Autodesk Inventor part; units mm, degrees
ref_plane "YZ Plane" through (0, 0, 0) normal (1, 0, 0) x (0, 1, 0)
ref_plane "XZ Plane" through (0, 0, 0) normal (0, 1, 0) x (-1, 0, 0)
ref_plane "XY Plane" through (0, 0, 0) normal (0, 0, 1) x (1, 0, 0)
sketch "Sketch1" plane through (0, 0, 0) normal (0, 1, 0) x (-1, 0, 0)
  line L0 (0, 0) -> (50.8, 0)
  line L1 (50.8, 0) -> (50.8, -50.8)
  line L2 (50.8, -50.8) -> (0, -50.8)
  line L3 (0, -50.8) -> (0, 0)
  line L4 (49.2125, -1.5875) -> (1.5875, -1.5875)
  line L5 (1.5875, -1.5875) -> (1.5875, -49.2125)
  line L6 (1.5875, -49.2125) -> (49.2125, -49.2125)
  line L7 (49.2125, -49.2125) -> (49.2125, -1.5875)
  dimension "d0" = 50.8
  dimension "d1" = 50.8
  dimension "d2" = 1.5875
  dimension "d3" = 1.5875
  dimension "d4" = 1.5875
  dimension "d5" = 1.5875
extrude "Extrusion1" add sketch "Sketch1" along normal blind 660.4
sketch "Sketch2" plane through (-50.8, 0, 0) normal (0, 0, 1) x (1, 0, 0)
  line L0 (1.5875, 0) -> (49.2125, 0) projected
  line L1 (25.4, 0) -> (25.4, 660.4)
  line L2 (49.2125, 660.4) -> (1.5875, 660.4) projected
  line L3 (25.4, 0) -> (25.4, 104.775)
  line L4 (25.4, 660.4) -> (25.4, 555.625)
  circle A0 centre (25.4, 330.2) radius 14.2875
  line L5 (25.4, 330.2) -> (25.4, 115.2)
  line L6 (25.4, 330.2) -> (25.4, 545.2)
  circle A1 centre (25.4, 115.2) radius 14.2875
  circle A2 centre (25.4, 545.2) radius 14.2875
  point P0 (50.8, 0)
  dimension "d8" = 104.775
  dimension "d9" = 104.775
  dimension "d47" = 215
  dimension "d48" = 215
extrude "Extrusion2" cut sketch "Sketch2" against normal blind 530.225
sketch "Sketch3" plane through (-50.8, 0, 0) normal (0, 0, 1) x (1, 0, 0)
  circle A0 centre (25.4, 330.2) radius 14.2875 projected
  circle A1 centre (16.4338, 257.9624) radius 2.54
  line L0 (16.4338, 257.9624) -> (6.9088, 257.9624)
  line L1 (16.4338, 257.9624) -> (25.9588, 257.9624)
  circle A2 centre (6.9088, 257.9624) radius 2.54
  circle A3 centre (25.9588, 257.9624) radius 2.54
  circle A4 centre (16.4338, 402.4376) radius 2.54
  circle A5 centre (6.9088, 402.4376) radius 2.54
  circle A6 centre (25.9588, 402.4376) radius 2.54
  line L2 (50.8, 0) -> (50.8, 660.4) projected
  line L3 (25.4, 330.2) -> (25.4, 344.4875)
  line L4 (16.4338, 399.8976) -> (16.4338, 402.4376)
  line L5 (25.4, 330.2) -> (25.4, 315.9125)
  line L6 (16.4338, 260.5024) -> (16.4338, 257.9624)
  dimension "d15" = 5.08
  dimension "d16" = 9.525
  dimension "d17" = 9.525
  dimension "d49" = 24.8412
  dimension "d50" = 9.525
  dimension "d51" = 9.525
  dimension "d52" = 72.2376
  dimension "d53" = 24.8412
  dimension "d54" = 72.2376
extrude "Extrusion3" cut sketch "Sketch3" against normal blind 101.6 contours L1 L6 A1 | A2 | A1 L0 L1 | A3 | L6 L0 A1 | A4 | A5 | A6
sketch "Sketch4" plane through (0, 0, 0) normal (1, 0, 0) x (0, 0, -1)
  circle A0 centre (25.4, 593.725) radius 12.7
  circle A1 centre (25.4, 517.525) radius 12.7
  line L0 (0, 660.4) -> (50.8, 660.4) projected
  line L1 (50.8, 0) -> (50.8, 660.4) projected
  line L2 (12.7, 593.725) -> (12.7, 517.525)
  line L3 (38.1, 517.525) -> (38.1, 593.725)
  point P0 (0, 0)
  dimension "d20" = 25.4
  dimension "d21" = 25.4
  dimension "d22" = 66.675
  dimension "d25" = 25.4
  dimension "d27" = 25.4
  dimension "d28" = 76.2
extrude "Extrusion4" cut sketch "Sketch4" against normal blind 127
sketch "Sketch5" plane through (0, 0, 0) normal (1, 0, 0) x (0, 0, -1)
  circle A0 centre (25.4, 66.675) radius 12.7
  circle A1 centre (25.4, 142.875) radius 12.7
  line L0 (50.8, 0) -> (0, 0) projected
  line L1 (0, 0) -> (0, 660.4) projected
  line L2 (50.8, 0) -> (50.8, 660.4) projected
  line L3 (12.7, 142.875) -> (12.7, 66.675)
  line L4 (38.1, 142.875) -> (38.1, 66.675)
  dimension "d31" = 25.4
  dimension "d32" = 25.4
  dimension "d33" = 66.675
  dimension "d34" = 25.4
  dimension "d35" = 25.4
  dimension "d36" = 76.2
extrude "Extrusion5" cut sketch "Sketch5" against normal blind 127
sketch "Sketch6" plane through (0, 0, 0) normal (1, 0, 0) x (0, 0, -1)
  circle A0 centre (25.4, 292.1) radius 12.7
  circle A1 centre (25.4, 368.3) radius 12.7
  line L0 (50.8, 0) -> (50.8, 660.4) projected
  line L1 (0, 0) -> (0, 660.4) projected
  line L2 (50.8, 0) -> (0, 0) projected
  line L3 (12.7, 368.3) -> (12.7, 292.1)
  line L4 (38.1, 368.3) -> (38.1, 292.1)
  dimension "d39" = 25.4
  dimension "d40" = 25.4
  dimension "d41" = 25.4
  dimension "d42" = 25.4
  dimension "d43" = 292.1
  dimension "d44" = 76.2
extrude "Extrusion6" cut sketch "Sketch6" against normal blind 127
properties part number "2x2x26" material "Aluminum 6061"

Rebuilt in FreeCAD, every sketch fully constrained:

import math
import FreeCAD as App
import Part
import Sketcher
from FreeCAD import Vector
Q = App.Units.Quantity

doc = App.newDocument("Part")
body = doc.addObject("PartDesign::Body", "Body")

sketch1 = body.newObject("Sketcher::SketchObject", "Sketch")
sketch1.AttachmentSupport = (doc.getObject("XZ_Plane"), [""])
sketch1.MapMode = "FlatFace"
sketch1.addGeometry(Part.LineSegment(Vector(-51, 0, 0), Vector(0, 0, 0)), False)
sketch1.addGeometry(Part.LineSegment(Vector(0, 0, 0), Vector(0, -51, 0)), False)
sketch1.addGeometry(Part.LineSegment(Vector(0, -51, 0), Vector(-51, -51, 0)), False)
sketch1.addGeometry(Part.LineSegment(Vector(-51, -51, 0), Vector(-51, 0, 0)), False)
sketch1.addGeometry(Part.LineSegment(Vector(-2, -2, 0), Vector(-49, -2, 0)), False)
sketch1.addGeometry(Part.LineSegment(Vector(-49, -2, 0), Vector(-49, -49, 0)), False)
sketch1.addGeometry(Part.LineSegment(Vector(-49, -49, 0), Vector(-2, -49, 0)), False)
sketch1.addGeometry(Part.LineSegment(Vector(-2, -49, 0), Vector(-2, -2, 0)), False)
sketch1.addConstraint(Sketcher.Constraint("Coincident", 0, 2, 1, 1))
sketch1.addConstraint(Sketcher.Constraint("Coincident", 1, 2, 2, 1))
sketch1.addConstraint(Sketcher.Constraint("Coincident", 2, 2, 3, 1))
sketch1.addConstraint(Sketcher.Constraint("Coincident", 3, 2, 0, 1))
sketch1.addConstraint(Sketcher.Constraint("Coincident", 4, 2, 5, 1))
sketch1.addConstraint(Sketcher.Constraint("Coincident", 5, 2, 6, 1))
sketch1.addConstraint(Sketcher.Constraint("Coincident", 6, 2, 7, 1))
sketch1.addConstraint(Sketcher.Constraint("Coincident", 7, 2, 4, 1))
sketch1.addConstraint(Sketcher.Constraint("Horizontal", 0))
sketch1.addConstraint(Sketcher.Constraint("Vertical", 1))
sketch1.addConstraint(Sketcher.Constraint("Horizontal", 2))
sketch1.addConstraint(Sketcher.Constraint("Vertical", 3))
sketch1.addConstraint(Sketcher.Constraint("Horizontal", 4))
sketch1.addConstraint(Sketcher.Constraint("Vertical", 5))
sketch1.addConstraint(Sketcher.Constraint("Horizontal", 6))
sketch1.addConstraint(Sketcher.Constraint("Vertical", 7))
sketch1.addConstraint(Sketcher.Constraint("Coincident", 0, 2, -1, 1))
sketch1.addConstraint(Sketcher.Constraint("Equal", 2, 1))
sketch1.addConstraint(Sketcher.Constraint("Equal", 6, 5))
sketch1.addConstraint(Sketcher.Constraint("DistanceX", 0, 1, 0, 2, Q("2 in")))
sketch1.addConstraint(Sketcher.Constraint("DistanceY", 4, 2, -1, 1, Q("0.0625 in")))
sketch1.addConstraint(Sketcher.Constraint("DistanceX", 6, 2, -1, 1, Q("0.0625 in")))
sketch1.addConstraint(Sketcher.Constraint("DistanceX", 3, 2, 4, 2, Q("0.0625 in")))
pad1 = body.newObject("PartDesign::Pad", "Pad")
pad1.Profile = sketch1
pad1.Length = Q("26 in")
pad1.Reversed = True

sketch2 = body.newObject("Sketcher::SketchObject", "Sketch001")
sketch2.AttachmentSupport = (doc.getObject("XY_Plane"), [""])
sketch2.MapMode = "FlatFace"
sketch2.addGeometry(Part.Circle(Vector(-25, 115, 0), Vector(0, 0, 1), 14), False)
sketch2.addGeometry(Part.Circle(Vector(-25, 545, 0), Vector(0, 0, 1), 14), False)
sketch2.addGeometry(Part.Circle(Vector(-25, 330, 0), Vector(0, 0, 1), 14), False)
sketch2.addConstraint(Sketcher.Constraint("Equal", 0, 1))
sketch2.addConstraint(Sketcher.Constraint("Equal", 1, 2))
sketch2.addConstraint(Sketcher.Constraint("Vertical", 0, 3, 1, 3))
sketch2.addConstraint(Sketcher.Constraint("Vertical", 1, 3, 2, 3))
sketch2.addConstraint(Sketcher.Constraint("Diameter", 0, Q("1.125 in")))
sketch2.addConstraint(Sketcher.Constraint("DistanceX", 0, 3, -1, 1, Q("1 in")))
sketch2.addConstraint(Sketcher.Constraint("DistanceY", -1, 1, 2, 3, Q("13 in")))
sketch2.addConstraint(Sketcher.Constraint("DistanceY", 0, 3, 2, 3, 215.0))
sketch2.addConstraint(Sketcher.Constraint("DistanceY", 2, 3, 1, 3, 215.0))
pocket1 = body.newObject("PartDesign::Pocket", "Pocket")
pocket1.Profile = sketch2
pocket1.Length = Q("20.875 in")

sketch3 = body.newObject("Sketcher::SketchObject", "Sketch002")
sketch3.AttachmentSupport = (doc.getObject("XY_Plane"), [""])
sketch3.MapMode = "FlatFace"
sketch3.addGeometry(Part.Circle(Vector(-34.4, 258, 0), Vector(0, 0, 1), 2.5), False)
sketch3.addGeometry(Part.Circle(Vector(-43.9, 258, 0), Vector(0, 0, 1), 2.5), False)
sketch3.addGeometry(Part.Circle(Vector(-24.8, 258, 0), Vector(0, 0, 1), 2.5), False)
sketch3.addGeometry(Part.Circle(Vector(-34.4, 402.4, 0), Vector(0, 0, 1), 2.5), False)
sketch3.addGeometry(Part.Circle(Vector(-43.9, 402.4, 0), Vector(0, 0, 1), 2.5), False)
sketch3.addGeometry(Part.Circle(Vector(-24.8, 402.4, 0), Vector(0, 0, 1), 2.5), False)
sketch3.addConstraint(Sketcher.Constraint("Equal", 0, 1))
sketch3.addConstraint(Sketcher.Constraint("Equal", 1, 2))
sketch3.addConstraint(Sketcher.Constraint("Equal", 2, 3))
sketch3.addConstraint(Sketcher.Constraint("Equal", 3, 4))
sketch3.addConstraint(Sketcher.Constraint("Equal", 4, 5))
sketch3.addConstraint(Sketcher.Constraint("Horizontal", 0, 3, 1, 3))
sketch3.addConstraint(Sketcher.Constraint("Horizontal", 1, 3, 2, 3))
sketch3.addConstraint(Sketcher.Constraint("Horizontal", 3, 3, 4, 3))
sketch3.addConstraint(Sketcher.Constraint("Horizontal", 4, 3, 5, 3))
sketch3.addConstraint(Sketcher.Constraint("Vertical", 0, 3, 3, 3))
sketch3.addConstraint(Sketcher.Constraint("Vertical", 1, 3, 4, 3))
sketch3.addConstraint(Sketcher.Constraint("Vertical", 2, 3, 5, 3))
sketch3.addConstraint(Sketcher.Constraint("Diameter", 0, Q("0.2 in")))
sketch3.addConstraint(Sketcher.Constraint("DistanceX", 2, 3, -1, 1, Q("0.978 in")))
sketch3.addConstraint(Sketcher.Constraint("DistanceX", 1, 3, 0, 3, Q("0.375 in")))
sketch3.addConstraint(Sketcher.Constraint("DistanceX", 0, 3, 2, 3, Q("0.375 in")))
sketch3.addConstraint(Sketcher.Constraint("DistanceY", -1, 1, 0, 3, Q("10.156 in")))
sketch3.addConstraint(Sketcher.Constraint("DistanceY", -1, 1, 3, 3, Q("15.844 in")))
pocket2 = body.newObject("PartDesign::Pocket", "Pocket001")
pocket2.Profile = sketch3
pocket2.Length = Q("4 in")

sketch4 = body.newObject("Sketcher::SketchObject", "Sketch003")
sketch4.AttachmentSupport = (doc.getObject("YZ_Plane"), [""])
sketch4.MapMode = "FlatFace"
sketch4.addGeometry(Part.ArcOfCircle(Part.Circle(Vector(594, -25, 0), Vector(0, 0, 1), 13), math.radians(-90), math.radians(90)), False)
sketch4.addGeometry(Part.LineSegment(Vector(594, -13, 0), Vector(518, -13, 0)), False)
sketch4.addGeometry(Part.ArcOfCircle(Part.Circle(Vector(518, -25, 0), Vector(0, 0, 1), 13), math.radians(90), math.radians(270)), False)
sketch4.addGeometry(Part.LineSegment(Vector(518, -38, 0), Vector(594, -38, 0)), False)
sketch4.addConstraint(Sketcher.Constraint("Tangent", 0, 2, 1, 1))
sketch4.addConstraint(Sketcher.Constraint("Tangent", 1, 2, 2, 1))
sketch4.addConstraint(Sketcher.Constraint("Tangent", 2, 2, 3, 1))
sketch4.addConstraint(Sketcher.Constraint("Tangent", 3, 2, 0, 1))
sketch4.addConstraint(Sketcher.Constraint("Horizontal", 1))
sketch4.addConstraint(Sketcher.Constraint("Horizontal", 3))
sketch4.addConstraint(Sketcher.Constraint("Radius", 0, Q("0.5 in")))
sketch4.addConstraint(Sketcher.Constraint("DistanceX", 1, 2, 1, 1, Q("3 in")))
sketch4.addConstraint(Sketcher.Constraint("DistanceY", 0, 3, -1, 1, Q("1 in")))
sketch4.addConstraint(Sketcher.Constraint("DistanceX", -1, 1, 0, 3, Q("23.375 in")))
pocket3 = body.newObject("PartDesign::Pocket", "Pocket002")
pocket3.Profile = sketch4
pocket3.Length = Q("5 in")

sketch5 = body.newObject("Sketcher::SketchObject", "Sketch004")
sketch5.AttachmentSupport = (doc.getObject("YZ_Plane"), [""])
sketch5.MapMode = "FlatFace"
sketch5.addGeometry(Part.ArcOfCircle(Part.Circle(Vector(67, -25, 0), Vector(0, 0, 1), 13), math.radians(90), math.radians(270)), False)
sketch5.addGeometry(Part.LineSegment(Vector(67, -38, 0), Vector(143, -38, 0)), False)
sketch5.addGeometry(Part.ArcOfCircle(Part.Circle(Vector(143, -25, 0), Vector(0, 0, 1), 13), math.radians(-90), math.radians(90)), False)
sketch5.addGeometry(Part.LineSegment(Vector(143, -13, 0), Vector(67, -13, 0)), False)
sketch5.addConstraint(Sketcher.Constraint("Tangent", 0, 2, 1, 1))
sketch5.addConstraint(Sketcher.Constraint("Tangent", 1, 2, 2, 1))
sketch5.addConstraint(Sketcher.Constraint("Tangent", 2, 2, 3, 1))
sketch5.addConstraint(Sketcher.Constraint("Tangent", 3, 2, 0, 1))
sketch5.addConstraint(Sketcher.Constraint("Horizontal", 1))
sketch5.addConstraint(Sketcher.Constraint("Horizontal", 3))
sketch5.addConstraint(Sketcher.Constraint("Radius", 0, Q("0.5 in")))
sketch5.addConstraint(Sketcher.Constraint("DistanceX", 1, 1, 1, 2, Q("3 in")))
sketch5.addConstraint(Sketcher.Constraint("DistanceY", 0, 3, -1, 1, Q("1 in")))
sketch5.addConstraint(Sketcher.Constraint("DistanceX", -1, 1, 0, 3, Q("2.625 in")))
pocket4 = body.newObject("PartDesign::Pocket", "Pocket003")
pocket4.Profile = sketch5
pocket4.Length = Q("5 in")

sketch6 = body.newObject("Sketcher::SketchObject", "Sketch005")
sketch6.AttachmentSupport = (doc.getObject("YZ_Plane"), [""])
sketch6.MapMode = "FlatFace"
sketch6.addGeometry(Part.ArcOfCircle(Part.Circle(Vector(292, -25, 0), Vector(0, 0, 1), 13), math.radians(90), math.radians(270)), False)
sketch6.addGeometry(Part.LineSegment(Vector(292, -38, 0), Vector(368, -38, 0)), False)
sketch6.addGeometry(Part.ArcOfCircle(Part.Circle(Vector(368, -25, 0), Vector(0, 0, 1), 13), math.radians(-90), math.radians(90)), False)
sketch6.addGeometry(Part.LineSegment(Vector(368, -13, 0), Vector(292, -13, 0)), False)
sketch6.addConstraint(Sketcher.Constraint("Tangent", 0, 2, 1, 1))
sketch6.addConstraint(Sketcher.Constraint("Tangent", 1, 2, 2, 1))
sketch6.addConstraint(Sketcher.Constraint("Tangent", 2, 2, 3, 1))
sketch6.addConstraint(Sketcher.Constraint("Tangent", 3, 2, 0, 1))
sketch6.addConstraint(Sketcher.Constraint("Horizontal", 1))
sketch6.addConstraint(Sketcher.Constraint("Horizontal", 3))
sketch6.addConstraint(Sketcher.Constraint("Radius", 0, Q("0.5 in")))
sketch6.addConstraint(Sketcher.Constraint("DistanceX", 1, 1, 1, 2, Q("3 in")))
sketch6.addConstraint(Sketcher.Constraint("DistanceY", 0, 3, -1, 1, Q("1 in")))
sketch6.addConstraint(Sketcher.Constraint("DistanceX", -1, 1, 0, 3, Q("11.5 in")))
pocket5 = body.newObject("PartDesign::Pocket", "Pocket004")
pocket5.Profile = sketch6
pocket5.Length = Q("5 in")

doc.recompute()
